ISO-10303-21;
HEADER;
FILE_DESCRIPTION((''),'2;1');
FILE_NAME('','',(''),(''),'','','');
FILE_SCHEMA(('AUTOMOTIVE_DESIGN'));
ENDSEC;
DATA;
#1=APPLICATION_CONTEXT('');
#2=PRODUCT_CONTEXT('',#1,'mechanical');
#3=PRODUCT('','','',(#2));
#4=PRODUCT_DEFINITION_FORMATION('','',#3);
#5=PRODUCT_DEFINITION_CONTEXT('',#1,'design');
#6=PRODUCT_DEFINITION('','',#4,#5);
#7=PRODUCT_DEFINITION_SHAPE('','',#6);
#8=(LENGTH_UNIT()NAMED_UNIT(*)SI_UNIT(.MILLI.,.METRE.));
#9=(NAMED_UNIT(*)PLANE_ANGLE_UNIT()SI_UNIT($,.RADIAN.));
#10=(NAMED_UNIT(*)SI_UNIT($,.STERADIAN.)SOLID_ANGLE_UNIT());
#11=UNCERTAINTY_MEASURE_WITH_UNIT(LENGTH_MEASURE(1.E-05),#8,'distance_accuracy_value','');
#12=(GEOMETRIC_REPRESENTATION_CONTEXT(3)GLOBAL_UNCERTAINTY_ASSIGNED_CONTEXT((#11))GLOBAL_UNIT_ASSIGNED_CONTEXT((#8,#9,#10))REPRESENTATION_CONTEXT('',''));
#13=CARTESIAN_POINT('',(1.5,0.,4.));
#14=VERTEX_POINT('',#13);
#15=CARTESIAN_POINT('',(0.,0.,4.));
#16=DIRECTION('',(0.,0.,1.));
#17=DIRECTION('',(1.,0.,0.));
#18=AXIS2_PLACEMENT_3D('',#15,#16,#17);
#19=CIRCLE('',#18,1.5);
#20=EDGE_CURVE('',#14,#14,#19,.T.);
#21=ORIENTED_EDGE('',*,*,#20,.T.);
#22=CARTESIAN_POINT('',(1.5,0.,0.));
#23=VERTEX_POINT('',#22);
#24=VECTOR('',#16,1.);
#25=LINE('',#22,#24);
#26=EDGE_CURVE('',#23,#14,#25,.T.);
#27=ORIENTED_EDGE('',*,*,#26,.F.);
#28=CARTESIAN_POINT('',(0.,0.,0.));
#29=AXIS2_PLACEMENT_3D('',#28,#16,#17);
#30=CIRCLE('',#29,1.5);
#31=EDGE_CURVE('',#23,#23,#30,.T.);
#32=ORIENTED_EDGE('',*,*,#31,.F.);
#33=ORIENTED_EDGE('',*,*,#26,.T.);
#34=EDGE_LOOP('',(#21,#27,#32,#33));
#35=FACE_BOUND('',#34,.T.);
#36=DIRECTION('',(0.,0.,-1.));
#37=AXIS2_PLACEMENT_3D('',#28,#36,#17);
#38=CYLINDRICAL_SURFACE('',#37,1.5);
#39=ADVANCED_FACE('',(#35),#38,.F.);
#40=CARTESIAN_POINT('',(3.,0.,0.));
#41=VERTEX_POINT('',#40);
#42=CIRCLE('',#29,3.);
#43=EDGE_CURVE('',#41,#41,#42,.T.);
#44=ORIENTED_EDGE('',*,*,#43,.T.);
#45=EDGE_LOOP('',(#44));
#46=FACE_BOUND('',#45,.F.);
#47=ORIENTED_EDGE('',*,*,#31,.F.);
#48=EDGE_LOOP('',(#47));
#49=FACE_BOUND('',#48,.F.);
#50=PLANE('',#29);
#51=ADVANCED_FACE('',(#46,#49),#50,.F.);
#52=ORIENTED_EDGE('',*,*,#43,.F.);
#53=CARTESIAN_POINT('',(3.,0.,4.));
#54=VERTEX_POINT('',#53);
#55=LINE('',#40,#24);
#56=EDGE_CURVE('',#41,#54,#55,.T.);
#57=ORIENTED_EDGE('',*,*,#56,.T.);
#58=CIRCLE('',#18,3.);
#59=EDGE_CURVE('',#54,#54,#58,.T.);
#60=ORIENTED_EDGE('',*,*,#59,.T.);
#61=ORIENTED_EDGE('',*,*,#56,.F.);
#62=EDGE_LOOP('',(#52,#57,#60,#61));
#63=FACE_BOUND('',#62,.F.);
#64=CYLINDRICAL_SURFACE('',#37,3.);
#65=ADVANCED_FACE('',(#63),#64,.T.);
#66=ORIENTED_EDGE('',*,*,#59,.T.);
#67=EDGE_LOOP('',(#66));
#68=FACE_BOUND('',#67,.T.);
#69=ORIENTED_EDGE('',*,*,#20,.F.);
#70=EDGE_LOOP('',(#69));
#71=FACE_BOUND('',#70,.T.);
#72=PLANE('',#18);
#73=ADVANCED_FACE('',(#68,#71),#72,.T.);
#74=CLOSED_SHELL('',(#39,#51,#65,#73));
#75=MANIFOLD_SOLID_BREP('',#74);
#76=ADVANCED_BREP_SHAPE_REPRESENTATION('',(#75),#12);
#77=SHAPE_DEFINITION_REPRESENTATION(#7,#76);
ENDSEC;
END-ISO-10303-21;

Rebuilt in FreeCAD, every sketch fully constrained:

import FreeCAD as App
import Part
import Sketcher

doc = App.newDocument("Part")
body = doc.addObject("PartDesign::Body", "Body")

sketch1 = body.newObject("Sketcher::SketchObject", "Sketch")
sketch1.AttachmentSupport = (doc.getObject("XY_Plane"), [""])
sketch1.MapMode = "FlatFace"
sketch1.addGeometry(Part.Circle(App.Vector(0, 0, 0), App.Vector(0, 0, 1), 3), False)
sketch1.addGeometry(Part.Circle(App.Vector(0, 0, 0), App.Vector(0, 0, 1), 1.5), False)
sketch1.addConstraint(Sketcher.Constraint("Coincident", 0, 3, -1, 1))
sketch1.addConstraint(Sketcher.Constraint("Coincident", 1, 3, -1, 1))
sketch1.addConstraint(Sketcher.Constraint("Diameter", 0, 6.0))
sketch1.addConstraint(Sketcher.Constraint("Diameter", 1, 3.0))
pad1 = body.newObject("PartDesign::Pad", "Pad")
pad1.Profile = sketch1
pad1.Length = 4

doc.recompute()
